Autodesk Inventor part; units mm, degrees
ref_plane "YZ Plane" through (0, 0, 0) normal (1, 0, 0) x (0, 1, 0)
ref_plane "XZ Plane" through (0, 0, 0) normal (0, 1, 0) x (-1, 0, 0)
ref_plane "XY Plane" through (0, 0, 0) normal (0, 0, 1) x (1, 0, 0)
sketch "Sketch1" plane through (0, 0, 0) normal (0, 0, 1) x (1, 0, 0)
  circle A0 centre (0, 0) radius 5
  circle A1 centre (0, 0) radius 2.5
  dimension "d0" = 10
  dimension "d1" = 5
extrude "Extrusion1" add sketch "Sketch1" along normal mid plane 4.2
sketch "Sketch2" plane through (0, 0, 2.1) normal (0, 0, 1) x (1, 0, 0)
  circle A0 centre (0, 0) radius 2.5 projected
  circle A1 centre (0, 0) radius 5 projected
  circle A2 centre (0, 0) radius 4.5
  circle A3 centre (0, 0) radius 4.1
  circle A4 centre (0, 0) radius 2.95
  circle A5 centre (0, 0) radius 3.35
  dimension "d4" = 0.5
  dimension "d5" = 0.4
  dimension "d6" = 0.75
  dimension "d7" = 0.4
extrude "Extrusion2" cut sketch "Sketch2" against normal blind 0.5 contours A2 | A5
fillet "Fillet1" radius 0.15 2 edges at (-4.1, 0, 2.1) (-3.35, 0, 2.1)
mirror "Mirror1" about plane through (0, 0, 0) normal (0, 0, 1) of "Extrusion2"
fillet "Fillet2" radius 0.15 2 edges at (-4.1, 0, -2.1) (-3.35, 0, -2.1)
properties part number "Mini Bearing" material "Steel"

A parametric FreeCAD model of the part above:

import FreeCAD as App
import Part
import Sketcher


def edges_at(feature, points):
    """Names of the edges that pass closest to the given points."""
    edges = feature.Shape.Edges
    near = lambda p: min(range(len(edges)), key=lambda i: edges[i].distToShape(Part.Vertex(*p))[0])
    return sorted({f"Edge{near(p) + 1}" for p in points})

doc = App.newDocument("Part")
body = doc.addObject("PartDesign::Body", "Body")

# Sketch on XY plane
sketch1 = doc.addObject("Sketcher::SketchObject", "Sketch")
body.addObject(sketch1)
sketch1.AttachmentSupport = (doc.XY_Plane, [""])
sketch1.MapMode = "FlatFace"
sketch1.addGeometry(Part.Circle(App.Vector(0, 0, 0), App.Vector(0, 0, 1), 5), False)
sketch1.addGeometry(Part.Circle(App.Vector(0, 0, 0), App.Vector(0, 0, 1), 2.5), False)
sketch1.addConstraint(Sketcher.Constraint("Coincident", 0, 3, -1, 1))
sketch1.addConstraint(Sketcher.Constraint("Coincident", 1, 3, -1, 1))
sketch1.addConstraint(Sketcher.Constraint("Diameter", 0, 10.0))
sketch1.addConstraint(Sketcher.Constraint("Diameter", 1, 5.0))
pad1 = doc.addObject("PartDesign::Pad", "Pad")
body.addObject(pad1)
pad1.Profile = sketch1
pad1.Length = 4.2
pad1.Midplane = True

# Sketch on XY plane
sketch2 = doc.addObject("Sketcher::SketchObject", "Sketch001")
body.addObject(sketch2)
sketch2.AttachmentSupport = (doc.XY_Plane, [""])
sketch2.MapMode = "FlatFace"
sketch2.AttachmentOffset = App.Placement(App.Vector(0, 0, 2.1), App.Rotation())
sketch2.addGeometry(Part.Circle(App.Vector(0, 0, 0), App.Vector(0, 0, 1), 4.5), False)
sketch2.addGeometry(Part.Circle(App.Vector(0, 0, 0), App.Vector(0, 0, 1), 4.1), False)
sketch2.addGeometry(Part.Circle(App.Vector(0, 0, 0), App.Vector(0, 0, 1), 3.4), False)
sketch2.addGeometry(Part.Circle(App.Vector(0, 0, 0), App.Vector(0, 0, 1), 3), False)
sketch2.addConstraint(Sketcher.Constraint("Coincident", 0, 3, -1, 1))
sketch2.addConstraint(Sketcher.Constraint("Coincident", 1, 3, -1, 1))
sketch2.addConstraint(Sketcher.Constraint("Coincident", 2, 3, -1, 1))
sketch2.addConstraint(Sketcher.Constraint("Coincident", 3, 3, -1, 1))
sketch2.addConstraint(Sketcher.Constraint("Diameter", 0, 9.0))
sketch2.addConstraint(Sketcher.Constraint("Diameter", 1, 8.2))
sketch2.addConstraint(Sketcher.Constraint("Diameter", 2, 6.7))
sketch2.addConstraint(Sketcher.Constraint("Diameter", 3, 5.9))
pocket1 = doc.addObject("PartDesign::Pocket", "Pocket")
body.addObject(pocket1)
pocket1.Profile = sketch2
pocket1.Length = 0.5
doc.recompute()

fillet = doc.addObject("PartDesign::Fillet", "Fillet")
body.addObject(fillet)
fillet.Base = (pocket1, edges_at(pocket1, [(-4.1, 0, 2.1), (-3.35, 0, 2.1)]))
fillet.Radius = 0.15
doc.recompute()

mirrored = doc.addObject("PartDesign::Mirrored", "Mirrored")
body.addObject(mirrored)
mirrored.Originals = [pocket1]
mirrored.MirrorPlane = (doc.XY_Plane, [""])
body.Tip = mirrored
doc.recompute()

fillet2 = doc.addObject("PartDesign::Fillet", "Fillet001")
body.addObject(fillet2)
fillet2.Base = (mirrored, edges_at(mirrored, [(-4.1, 0, -2.1), (-3.35, 0, -2.1)]))
fillet2.Radius = 0.15

doc.recompute()
